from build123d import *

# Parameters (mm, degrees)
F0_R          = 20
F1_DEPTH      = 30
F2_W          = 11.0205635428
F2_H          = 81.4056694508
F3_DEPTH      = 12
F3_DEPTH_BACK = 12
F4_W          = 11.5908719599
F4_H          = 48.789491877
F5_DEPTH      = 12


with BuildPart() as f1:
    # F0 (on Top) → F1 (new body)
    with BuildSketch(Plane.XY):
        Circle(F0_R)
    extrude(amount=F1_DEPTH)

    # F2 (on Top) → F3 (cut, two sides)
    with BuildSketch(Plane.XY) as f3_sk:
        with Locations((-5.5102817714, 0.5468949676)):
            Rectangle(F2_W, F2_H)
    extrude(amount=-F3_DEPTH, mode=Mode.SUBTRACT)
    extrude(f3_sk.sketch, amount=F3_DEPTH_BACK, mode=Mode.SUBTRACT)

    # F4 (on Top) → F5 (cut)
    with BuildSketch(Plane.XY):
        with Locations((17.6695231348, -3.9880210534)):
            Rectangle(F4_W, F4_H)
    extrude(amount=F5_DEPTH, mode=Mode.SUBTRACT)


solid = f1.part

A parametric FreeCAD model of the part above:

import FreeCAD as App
import Part
import Sketcher
from FreeCAD import Vector
Q = App.Units.Quantity

doc = App.newDocument("Part")
body = doc.addObject("PartDesign::Body", "Body")

# Sketch on XY plane
sketch1 = doc.addObject("Sketcher::SketchObject", "Sketch")
body.addObject(sketch1)
sketch1.AttachmentSupport = (doc.XY_Plane, [""])
sketch1.MapMode = "FlatFace"
sketch1.addGeometry(Part.Circle(Vector(0, 0, 0), Vector(0, 0, 1), 20), False)
sketch1.addConstraint([
    Sketcher.Constraint("Coincident", 0, 3, -1, 1),
    Sketcher.Constraint("Diameter", 0, Q("40 mm")),
])
pad1 = doc.addObject("PartDesign::Pad", "Pad")
body.addObject(pad1)
pad1.Profile = sketch1
pad1.Length = 30

# Sketch on XY plane
sketch2 = doc.addObject("Sketcher::SketchObject", "Sketch001")
body.addObject(sketch2)
sketch2.AttachmentSupport = (doc.XY_Plane, [""])
sketch2.MapMode = "FlatFace"
sketch2.addGeometry([
    Part.LineSegment(Vector(-11, 41, 0), Vector(-11, -40, 0)),
    Part.LineSegment(Vector(-11, -40, 0), Vector(0, -40, 0)),
    Part.LineSegment(Vector(0, -40, 0), Vector(0, 41, 0)),
    Part.LineSegment(Vector(0, 41, 0), Vector(-11, 41, 0)),
], False)
sketch2.addConstraint([
    Sketcher.Constraint("Coincident", 0, 2, 1, 1),
    Sketcher.Constraint("Coincident", 1, 2, 2, 1),
    Sketcher.Constraint("Coincident", 2, 2, 3, 1),
    Sketcher.Constraint("Coincident", 3, 2, 0, 1),
    Sketcher.Constraint("Vertical", 0),
    Sketcher.Constraint("Horizontal", 1),
    Sketcher.Constraint("Vertical", 2),
    Sketcher.Constraint("Horizontal", 3),
    Sketcher.Constraint("PointOnObject", 1, 2, -2),
    Sketcher.Constraint("DistanceY", 0, 2, 0, 1, Q("81.405669 mm")),
    Sketcher.Constraint("DistanceX", 1, 1, 1, 2, Q("11.020564 mm")),
    Sketcher.Constraint("DistanceY", 0, 2, -1, 1, Q("40.15594 mm")),
])
pocket1 = doc.addObject("PartDesign::Pocket", "Pocket")
body.addObject(pocket1)
pocket1.Profile = sketch2
pocket1.Type = "TwoLengths"
pocket1.Length = 12
pocket1.Length2 = 12

# Sketch on XY plane
sketch3 = doc.addObject("Sketcher::SketchObject", "Sketch002")
body.addObject(sketch3)
sketch3.AttachmentSupport = (doc.XY_Plane, [""])
sketch3.MapMode = "FlatFace"
sketch3.addGeometry([
    Part.LineSegment(Vector(12, 20, 0), Vector(12, -28, 0)),
    Part.LineSegment(Vector(12, -28, 0), Vector(23, -28, 0)),
    Part.LineSegment(Vector(23, -28, 0), Vector(23, 20, 0)),
    Part.LineSegment(Vector(23, 20, 0), Vector(12, 20, 0)),
], False)
sketch3.addConstraint([
    Sketcher.Constraint("Coincident", 0, 2, 1, 1),
    Sketcher.Constraint("Coincident", 1, 2, 2, 1),
    Sketcher.Constraint("Coincident", 2, 2, 3, 1),
    Sketcher.Constraint("Coincident", 3, 2, 0, 1),
    Sketcher.Constraint("Vertical", 0),
    Sketcher.Constraint("Horizontal", 1),
    Sketcher.Constraint("Vertical", 2),
    Sketcher.Constraint("Horizontal", 3),
    Sketcher.Constraint("DistanceX", 1, 1, 1, 2, Q("11.590872 mm")),
    Sketcher.Constraint("DistanceY", 0, 2, 0, 1, Q("48.789492 mm")),
    Sketcher.Constraint("DistanceX", -1, 1, 1, 2, Q("23.464959 mm")),
    Sketcher.Constraint("DistanceY", 0, 2, -1, 1, Q("28.382767 mm")),
])
pocket2 = doc.addObject("PartDesign::Pocket", "Pocket001")
body.addObject(pocket2)
pocket2.Profile = sketch3
pocket2.Length = 12
pocket2.Reversed = True

doc.recompute()
